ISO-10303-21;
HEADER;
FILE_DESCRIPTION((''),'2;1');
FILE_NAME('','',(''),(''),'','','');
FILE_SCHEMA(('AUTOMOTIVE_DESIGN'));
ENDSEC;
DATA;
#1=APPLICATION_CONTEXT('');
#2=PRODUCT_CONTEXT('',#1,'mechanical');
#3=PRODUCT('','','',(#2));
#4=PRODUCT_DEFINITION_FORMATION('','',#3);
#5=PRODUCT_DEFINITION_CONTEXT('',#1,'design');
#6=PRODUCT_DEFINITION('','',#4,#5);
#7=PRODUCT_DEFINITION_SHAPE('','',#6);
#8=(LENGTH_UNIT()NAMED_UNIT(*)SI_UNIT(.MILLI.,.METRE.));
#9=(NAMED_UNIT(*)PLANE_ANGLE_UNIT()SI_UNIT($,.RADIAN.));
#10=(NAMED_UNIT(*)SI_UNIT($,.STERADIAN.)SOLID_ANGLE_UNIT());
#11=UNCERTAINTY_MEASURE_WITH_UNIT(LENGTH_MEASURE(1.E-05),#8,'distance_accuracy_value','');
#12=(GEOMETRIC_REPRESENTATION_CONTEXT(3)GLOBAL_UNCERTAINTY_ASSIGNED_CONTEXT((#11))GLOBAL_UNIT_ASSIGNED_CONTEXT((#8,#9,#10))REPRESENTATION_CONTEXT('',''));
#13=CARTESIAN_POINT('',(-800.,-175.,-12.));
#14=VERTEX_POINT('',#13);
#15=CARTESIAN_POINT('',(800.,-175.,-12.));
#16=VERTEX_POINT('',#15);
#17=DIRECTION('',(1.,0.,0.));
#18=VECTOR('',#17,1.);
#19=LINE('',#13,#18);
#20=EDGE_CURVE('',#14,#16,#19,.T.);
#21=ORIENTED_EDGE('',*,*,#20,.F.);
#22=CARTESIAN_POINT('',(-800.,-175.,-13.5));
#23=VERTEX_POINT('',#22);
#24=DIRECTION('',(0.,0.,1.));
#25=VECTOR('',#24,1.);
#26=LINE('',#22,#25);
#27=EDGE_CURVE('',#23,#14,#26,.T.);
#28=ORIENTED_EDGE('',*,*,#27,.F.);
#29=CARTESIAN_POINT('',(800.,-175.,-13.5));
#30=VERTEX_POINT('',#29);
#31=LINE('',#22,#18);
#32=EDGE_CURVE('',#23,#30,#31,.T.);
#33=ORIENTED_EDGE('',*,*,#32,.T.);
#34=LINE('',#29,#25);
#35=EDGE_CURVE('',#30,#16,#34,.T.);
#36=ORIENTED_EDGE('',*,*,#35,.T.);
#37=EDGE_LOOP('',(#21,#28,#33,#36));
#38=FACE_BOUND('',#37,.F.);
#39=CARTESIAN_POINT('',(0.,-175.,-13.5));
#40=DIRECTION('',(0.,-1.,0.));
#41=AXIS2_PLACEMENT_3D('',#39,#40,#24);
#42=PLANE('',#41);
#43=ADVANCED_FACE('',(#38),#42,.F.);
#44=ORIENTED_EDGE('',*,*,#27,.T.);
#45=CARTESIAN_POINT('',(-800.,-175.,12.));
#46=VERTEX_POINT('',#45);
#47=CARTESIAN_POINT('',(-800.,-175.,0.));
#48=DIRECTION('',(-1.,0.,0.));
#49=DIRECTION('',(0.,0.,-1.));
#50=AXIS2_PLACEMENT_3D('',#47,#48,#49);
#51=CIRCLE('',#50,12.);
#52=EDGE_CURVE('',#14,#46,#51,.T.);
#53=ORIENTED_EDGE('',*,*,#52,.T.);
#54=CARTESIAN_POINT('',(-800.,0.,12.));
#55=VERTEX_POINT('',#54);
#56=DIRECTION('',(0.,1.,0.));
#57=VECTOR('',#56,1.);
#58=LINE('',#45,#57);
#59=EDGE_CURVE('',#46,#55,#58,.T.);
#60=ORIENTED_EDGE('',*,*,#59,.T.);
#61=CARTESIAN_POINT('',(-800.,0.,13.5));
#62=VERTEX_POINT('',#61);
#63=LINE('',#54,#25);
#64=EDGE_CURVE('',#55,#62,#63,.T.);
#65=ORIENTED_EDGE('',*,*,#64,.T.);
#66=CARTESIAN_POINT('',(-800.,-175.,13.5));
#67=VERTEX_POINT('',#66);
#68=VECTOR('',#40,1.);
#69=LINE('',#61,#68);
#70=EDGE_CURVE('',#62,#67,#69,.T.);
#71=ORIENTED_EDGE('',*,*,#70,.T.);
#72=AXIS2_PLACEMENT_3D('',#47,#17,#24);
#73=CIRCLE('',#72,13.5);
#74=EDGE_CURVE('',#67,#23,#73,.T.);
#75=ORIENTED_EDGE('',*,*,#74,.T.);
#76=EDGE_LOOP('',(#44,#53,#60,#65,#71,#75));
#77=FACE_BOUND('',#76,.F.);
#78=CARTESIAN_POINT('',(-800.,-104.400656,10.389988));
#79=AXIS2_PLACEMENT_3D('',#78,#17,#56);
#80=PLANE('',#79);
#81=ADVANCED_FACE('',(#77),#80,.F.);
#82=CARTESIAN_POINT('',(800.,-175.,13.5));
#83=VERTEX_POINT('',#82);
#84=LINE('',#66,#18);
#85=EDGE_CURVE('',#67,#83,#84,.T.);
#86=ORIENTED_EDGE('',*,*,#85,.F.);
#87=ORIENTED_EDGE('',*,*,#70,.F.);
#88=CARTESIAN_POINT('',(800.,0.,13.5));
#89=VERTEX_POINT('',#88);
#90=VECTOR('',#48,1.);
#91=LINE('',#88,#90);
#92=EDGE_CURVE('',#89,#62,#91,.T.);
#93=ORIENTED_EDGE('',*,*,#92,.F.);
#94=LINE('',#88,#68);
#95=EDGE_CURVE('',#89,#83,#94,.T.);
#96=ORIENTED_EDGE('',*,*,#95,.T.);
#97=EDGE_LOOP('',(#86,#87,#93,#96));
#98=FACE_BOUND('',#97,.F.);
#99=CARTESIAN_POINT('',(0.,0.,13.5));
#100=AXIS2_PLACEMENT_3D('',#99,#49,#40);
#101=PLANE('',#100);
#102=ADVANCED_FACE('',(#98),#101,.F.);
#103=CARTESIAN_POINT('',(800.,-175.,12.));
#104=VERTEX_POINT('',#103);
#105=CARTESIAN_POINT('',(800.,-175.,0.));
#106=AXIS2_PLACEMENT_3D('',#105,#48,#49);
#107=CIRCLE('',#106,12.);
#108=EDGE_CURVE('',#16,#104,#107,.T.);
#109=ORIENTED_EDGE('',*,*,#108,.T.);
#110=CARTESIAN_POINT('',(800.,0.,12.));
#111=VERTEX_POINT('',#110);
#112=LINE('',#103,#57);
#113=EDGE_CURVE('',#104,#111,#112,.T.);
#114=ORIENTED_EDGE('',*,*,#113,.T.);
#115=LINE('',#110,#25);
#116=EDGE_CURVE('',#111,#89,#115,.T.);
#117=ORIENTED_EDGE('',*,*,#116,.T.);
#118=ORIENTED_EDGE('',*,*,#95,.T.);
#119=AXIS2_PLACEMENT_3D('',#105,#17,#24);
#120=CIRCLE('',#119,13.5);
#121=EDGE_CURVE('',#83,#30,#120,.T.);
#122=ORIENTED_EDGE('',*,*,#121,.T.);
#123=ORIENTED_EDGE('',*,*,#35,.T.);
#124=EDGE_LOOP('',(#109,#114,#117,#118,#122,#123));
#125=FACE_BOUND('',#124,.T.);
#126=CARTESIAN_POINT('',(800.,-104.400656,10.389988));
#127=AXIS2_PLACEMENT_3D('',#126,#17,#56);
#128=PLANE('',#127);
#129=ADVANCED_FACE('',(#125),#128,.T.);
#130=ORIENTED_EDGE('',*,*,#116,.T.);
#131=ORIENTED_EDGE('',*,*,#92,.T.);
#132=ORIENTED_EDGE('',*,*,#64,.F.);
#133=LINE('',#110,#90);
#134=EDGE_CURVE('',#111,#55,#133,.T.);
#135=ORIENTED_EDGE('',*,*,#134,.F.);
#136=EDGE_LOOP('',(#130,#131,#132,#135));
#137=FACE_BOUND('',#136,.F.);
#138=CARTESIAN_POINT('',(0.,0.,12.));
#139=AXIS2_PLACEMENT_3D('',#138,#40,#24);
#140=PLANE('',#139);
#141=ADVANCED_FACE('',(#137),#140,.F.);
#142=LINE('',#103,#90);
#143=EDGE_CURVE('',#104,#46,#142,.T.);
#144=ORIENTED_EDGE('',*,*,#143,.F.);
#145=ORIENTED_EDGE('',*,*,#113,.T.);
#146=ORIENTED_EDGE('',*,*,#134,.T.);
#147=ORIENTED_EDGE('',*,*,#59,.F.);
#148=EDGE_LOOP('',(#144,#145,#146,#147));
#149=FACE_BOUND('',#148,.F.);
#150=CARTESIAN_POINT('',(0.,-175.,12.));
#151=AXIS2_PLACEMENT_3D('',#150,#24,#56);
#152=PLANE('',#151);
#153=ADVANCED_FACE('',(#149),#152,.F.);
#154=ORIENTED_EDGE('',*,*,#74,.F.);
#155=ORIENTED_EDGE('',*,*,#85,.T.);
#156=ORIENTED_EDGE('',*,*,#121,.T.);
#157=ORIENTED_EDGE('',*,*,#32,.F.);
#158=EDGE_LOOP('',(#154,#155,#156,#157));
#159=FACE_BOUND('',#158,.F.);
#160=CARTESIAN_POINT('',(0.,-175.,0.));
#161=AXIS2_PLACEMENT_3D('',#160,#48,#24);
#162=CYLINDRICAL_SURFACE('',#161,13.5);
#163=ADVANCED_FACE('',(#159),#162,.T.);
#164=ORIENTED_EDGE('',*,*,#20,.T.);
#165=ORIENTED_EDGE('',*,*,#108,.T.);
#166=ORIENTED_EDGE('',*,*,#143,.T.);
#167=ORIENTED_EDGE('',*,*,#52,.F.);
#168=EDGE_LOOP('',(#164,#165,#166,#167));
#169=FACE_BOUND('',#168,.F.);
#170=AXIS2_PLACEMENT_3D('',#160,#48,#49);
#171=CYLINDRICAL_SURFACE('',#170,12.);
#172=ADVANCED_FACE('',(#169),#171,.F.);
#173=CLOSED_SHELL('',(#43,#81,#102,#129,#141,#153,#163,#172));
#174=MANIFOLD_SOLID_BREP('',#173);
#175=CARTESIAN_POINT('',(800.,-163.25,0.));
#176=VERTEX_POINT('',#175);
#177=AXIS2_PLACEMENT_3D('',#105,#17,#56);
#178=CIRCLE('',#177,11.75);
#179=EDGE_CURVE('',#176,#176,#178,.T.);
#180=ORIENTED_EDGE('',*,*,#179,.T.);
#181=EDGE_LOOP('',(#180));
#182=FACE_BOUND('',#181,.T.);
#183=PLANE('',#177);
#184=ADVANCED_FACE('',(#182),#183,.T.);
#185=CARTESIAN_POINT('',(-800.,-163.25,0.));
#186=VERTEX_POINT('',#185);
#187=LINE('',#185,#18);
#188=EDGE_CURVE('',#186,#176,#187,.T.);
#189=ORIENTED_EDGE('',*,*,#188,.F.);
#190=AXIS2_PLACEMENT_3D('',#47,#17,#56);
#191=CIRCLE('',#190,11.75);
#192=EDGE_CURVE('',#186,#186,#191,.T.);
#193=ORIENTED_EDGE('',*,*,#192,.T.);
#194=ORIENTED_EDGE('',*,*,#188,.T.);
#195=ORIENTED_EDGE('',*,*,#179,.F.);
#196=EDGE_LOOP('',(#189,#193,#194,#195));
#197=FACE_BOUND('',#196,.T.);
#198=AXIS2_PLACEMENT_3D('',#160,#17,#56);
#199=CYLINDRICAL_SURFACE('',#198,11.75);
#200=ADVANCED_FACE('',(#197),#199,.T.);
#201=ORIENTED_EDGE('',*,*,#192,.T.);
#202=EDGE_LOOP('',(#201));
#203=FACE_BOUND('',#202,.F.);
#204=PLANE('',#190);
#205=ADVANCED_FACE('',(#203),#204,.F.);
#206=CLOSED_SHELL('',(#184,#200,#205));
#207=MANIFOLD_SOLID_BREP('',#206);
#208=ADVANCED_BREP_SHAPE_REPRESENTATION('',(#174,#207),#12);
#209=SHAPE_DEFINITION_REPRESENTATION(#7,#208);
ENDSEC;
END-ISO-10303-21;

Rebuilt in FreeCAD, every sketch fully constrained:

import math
import FreeCAD as App
import Part
import Sketcher
from FreeCAD import Vector

doc = App.newDocument("Part")
params = doc.addObject("Spreadsheet::Sheet", "Params")
for row, (alias, value) in enumerate([
    ("sketch1_radius", "12 mm"),
    ("sketch1_diameter", "23.5 mm"),
    ("sketch1_radius2", "13.5 mm"),
    ("sketch1_width", "175 mm"),
    ("pad1_length", "1600 mm"),
], start=1):
    params.set(f"A{row}", alias)
    params.set(f"B{row}", "=" + value)
    params.setAlias(f"B{row}", alias)

body = doc.addObject("PartDesign::Body", "Body")
body.AllowCompound = True

sketch1 = body.newObject("Sketcher::SketchObject", "Sketch")
sketch1.AttachmentSupport = (doc.getObject("YZ_Plane"), [""])
sketch1.MapMode = "FlatFace"
sketch1.addGeometry(Part.LineSegment(Vector(0, 13.5, 0), Vector(-175, 13.5, 0)), False)
sketch1.addGeometry(Part.ArcOfCircle(Part.Circle(Vector(-175, 0, 0), Vector(0, 0, 1), 13.5), math.radians(90), math.radians(270)), False)
sketch1.addGeometry(Part.LineSegment(Vector(-175, -13.5, 0), Vector(-175, -12, 0)), False)
sketch1.addGeometry(Part.ArcOfCircle(Part.Circle(Vector(-175, 0, 0), Vector(0, 0, 1), 12), math.radians(90), math.radians(270)), False)
sketch1.addGeometry(Part.LineSegment(Vector(-175, 12, 0), Vector(0, 12, 0)), False)
sketch1.addGeometry(Part.LineSegment(Vector(0, 12, 0), Vector(0, 13.5, 0)), False)
sketch1.addGeometry(Part.Circle(Vector(-175, 0, 0), Vector(0, 0, 1), 11.8), False)
sketch1.addConstraint(Sketcher.Constraint("Tangent", 0, 2, 1, 1))
sketch1.addConstraint(Sketcher.Constraint("Coincident", 1, 2, 2, 1))
sketch1.addConstraint(Sketcher.Constraint("Coincident", 2, 2, 3, 2))
sketch1.addConstraint(Sketcher.Constraint("Tangent", 3, 1, 4, 1))
sketch1.addConstraint(Sketcher.Constraint("Coincident", 4, 2, 5, 1))
sketch1.addConstraint(Sketcher.Constraint("Coincident", 5, 2, 0, 1))
sketch1.addConstraint(Sketcher.Constraint("Horizontal", 0))
sketch1.addConstraint(Sketcher.Constraint("Vertical", 2))
sketch1.addConstraint(Sketcher.Constraint("Horizontal", 4))
sketch1.addConstraint(Sketcher.Constraint("Vertical", 5))
sketch1.addConstraint(Sketcher.Constraint("Coincident", 3, 3, 1, 3))
sketch1.addConstraint(Sketcher.Constraint("Coincident", 6, 3, 1, 3))
sketch1.addConstraint(Sketcher.Constraint("Symmetric", 0, 2, 1, 2, -1))
sketch1.addConstraint(Sketcher.Constraint("PointOnObject", 4, 2, -2))
sketch1.addConstraint(Sketcher.Constraint("Radius", 3, 12.0))
sketch1.addConstraint(Sketcher.Constraint("Diameter", 6, 23.5))
sketch1.addConstraint(Sketcher.Constraint("Radius", 1, 13.5))
sketch1.addConstraint(Sketcher.Constraint("DistanceX", 0, 2, 0, 1, 175.0))
sketch1.setExpression("Constraints[14]", "Params.sketch1_radius")
sketch1.setExpression("Constraints[15]", "Params.sketch1_diameter")
sketch1.setExpression("Constraints[16]", "Params.sketch1_radius2")
sketch1.setExpression("Constraints[17]", "Params.sketch1_width")
pad1 = body.newObject("PartDesign::Pad", "Pad")
pad1.Profile = sketch1
pad1.setExpression("Length", "Params.pad1_length")
pad1.Midplane = True

doc.recompute()
